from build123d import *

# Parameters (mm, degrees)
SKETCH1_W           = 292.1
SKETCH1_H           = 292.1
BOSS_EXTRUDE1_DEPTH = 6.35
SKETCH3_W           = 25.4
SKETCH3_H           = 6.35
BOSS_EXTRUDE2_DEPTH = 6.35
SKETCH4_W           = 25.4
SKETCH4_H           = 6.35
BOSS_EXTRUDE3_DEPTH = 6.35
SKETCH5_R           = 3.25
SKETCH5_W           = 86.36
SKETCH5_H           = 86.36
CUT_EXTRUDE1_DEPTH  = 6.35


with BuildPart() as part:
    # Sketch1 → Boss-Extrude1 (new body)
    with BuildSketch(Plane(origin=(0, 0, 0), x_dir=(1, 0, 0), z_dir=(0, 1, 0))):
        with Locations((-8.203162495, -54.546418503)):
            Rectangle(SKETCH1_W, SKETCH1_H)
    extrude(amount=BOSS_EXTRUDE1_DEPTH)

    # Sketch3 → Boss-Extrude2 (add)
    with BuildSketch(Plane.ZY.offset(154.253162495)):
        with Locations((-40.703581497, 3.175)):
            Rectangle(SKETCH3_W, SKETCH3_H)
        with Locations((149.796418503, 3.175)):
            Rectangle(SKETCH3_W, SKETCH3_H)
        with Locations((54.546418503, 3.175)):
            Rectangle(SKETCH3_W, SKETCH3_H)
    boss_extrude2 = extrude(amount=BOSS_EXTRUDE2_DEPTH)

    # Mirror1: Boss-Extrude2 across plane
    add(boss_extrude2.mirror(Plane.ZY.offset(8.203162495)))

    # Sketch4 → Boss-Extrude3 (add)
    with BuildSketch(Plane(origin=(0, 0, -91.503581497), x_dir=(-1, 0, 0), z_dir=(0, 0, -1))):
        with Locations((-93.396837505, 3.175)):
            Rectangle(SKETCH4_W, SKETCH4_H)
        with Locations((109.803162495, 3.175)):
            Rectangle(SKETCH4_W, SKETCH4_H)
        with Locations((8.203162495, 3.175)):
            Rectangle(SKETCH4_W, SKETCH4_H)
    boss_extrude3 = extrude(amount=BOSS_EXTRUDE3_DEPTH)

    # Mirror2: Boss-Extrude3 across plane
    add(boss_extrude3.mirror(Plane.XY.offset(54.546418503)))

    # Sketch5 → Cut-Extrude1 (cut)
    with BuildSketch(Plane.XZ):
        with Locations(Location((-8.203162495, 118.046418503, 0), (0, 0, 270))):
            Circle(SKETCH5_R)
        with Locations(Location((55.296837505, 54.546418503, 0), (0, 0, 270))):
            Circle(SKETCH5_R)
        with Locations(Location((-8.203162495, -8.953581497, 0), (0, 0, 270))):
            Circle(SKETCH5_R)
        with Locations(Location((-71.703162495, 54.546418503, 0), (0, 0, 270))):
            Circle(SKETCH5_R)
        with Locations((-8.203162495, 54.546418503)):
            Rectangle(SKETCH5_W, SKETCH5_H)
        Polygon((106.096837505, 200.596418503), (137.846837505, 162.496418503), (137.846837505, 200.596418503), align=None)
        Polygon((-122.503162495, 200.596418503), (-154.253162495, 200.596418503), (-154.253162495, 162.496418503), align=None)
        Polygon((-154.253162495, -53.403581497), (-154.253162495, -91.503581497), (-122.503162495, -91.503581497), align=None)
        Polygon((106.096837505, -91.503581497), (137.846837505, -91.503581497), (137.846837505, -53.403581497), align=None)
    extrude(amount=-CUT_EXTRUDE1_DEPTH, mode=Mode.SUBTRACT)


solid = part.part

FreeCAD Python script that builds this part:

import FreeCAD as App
import Part
import Sketcher
Q = App.Units.Quantity

doc = App.newDocument("Part")
params = doc.addObject("Spreadsheet::Sheet", "Params")
for row, (alias, value) in enumerate([
    ("sketch1_width", "11.5 in"),
    ("pad1_length", "0.25 in"),
    ("sketch2_height", "1 in"),
    ("sketch2_width", "0.25 in"),
    ("pad2_length", "0.25 in"),
    ("sketch3_width", "1 in"),
    ("sketch3_height", "0.25 in"),
    ("pad3_length", "0.25 in"),
    ("sketch4_width", "3.4 in"),
    ("sketch4_height", "1.5 in"),
    ("sketch4_width2", "1.25 in"),
    ("pocket1_length", "0.25 in"),
], start=1):
    params.set(f"A{row}", alias)
    params.set(f"B{row}", "=" + value)
    params.setAlias(f"B{row}", alias)

body = doc.addObject("PartDesign::Body", "Body")

# Sketch on XZ plane
sketch1 = body.newObject("Sketcher::SketchObject", "Sketch")
sketch1.AttachmentSupport = (doc.getObject("XZ_Plane"), [""])
sketch1.MapMode = "FlatFace"
sketch1.addGeometry([
    Part.LineSegment(App.Vector(-154, -92, 0), App.Vector(-154, 201, 0)),
    Part.LineSegment(App.Vector(-154, 201, 0), App.Vector(138, 201, 0)),
    Part.LineSegment(App.Vector(138, 201, 0), App.Vector(138, -92, 0)),
    Part.LineSegment(App.Vector(138, -92, 0), App.Vector(-154, -92, 0)),
], False)
sketch1.addConstraint([
    Sketcher.Constraint("Coincident", 0, 2, 1, 1),
    Sketcher.Constraint("Coincident", 1, 2, 2, 1),
    Sketcher.Constraint("Coincident", 2, 2, 3, 1),
    Sketcher.Constraint("Coincident", 3, 2, 0, 1),
    Sketcher.Constraint("Vertical", 0),
    Sketcher.Constraint("Horizontal", 1),
    Sketcher.Constraint("Vertical", 2),
    Sketcher.Constraint("Horizontal", 3),
    Sketcher.Constraint("Equal", 3, 0),
    Sketcher.Constraint("DistanceX", 1, 1, 1, 2, Q("11.5 in")),
    Sketcher.Constraint("DistanceY", -1, 1, 0, 2, Q("200.596419 mm")),
    Sketcher.Constraint("DistanceX", 0, 2, -1, 1, Q("154.253162 mm")),
])
sketch1.setExpression("Constraints[9]", "Params.sketch1_width")
pad1 = body.newObject("PartDesign::Pad", "Pad")
pad1.Profile = sketch1
pad1.setExpression("Length", "Params.pad1_length")
pad1.Reversed = True

# Sketch on YZ plane
sketch2 = body.newObject("Sketcher::SketchObject", "Sketch001")
sketch2.AttachmentSupport = (doc.getObject("YZ_Plane"), [""])
sketch2.MapMode = "FlatFace"
sketch2.AttachmentOffset = App.Placement(App.Vector(0, 0, -154.253162), App.Rotation())
sketch2.addGeometry([
    Part.LineSegment(App.Vector(6, -53, 0), App.Vector(0, -53, 0)),  # 0
    Part.LineSegment(App.Vector(0, -53, 0), App.Vector(0, -28, 0)),  # 1
    Part.LineSegment(App.Vector(0, -28, 0), App.Vector(6, -28, 0)),  # 2
    Part.LineSegment(App.Vector(6, -28, 0), App.Vector(6, -53, 0)),  # 3
    Part.LineSegment(App.Vector(6, 137, 0), App.Vector(0, 137, 0)),  # 4
    Part.LineSegment(App.Vector(0, 137, 0), App.Vector(0, 162, 0)),  # 5
    Part.LineSegment(App.Vector(0, 162, 0), App.Vector(6, 162, 0)),  # 6
    Part.LineSegment(App.Vector(6, 162, 0), App.Vector(6, 137, 0)),  # 7
    Part.LineSegment(App.Vector(6, 42, 0), App.Vector(0, 42, 0)),  # 8
    Part.LineSegment(App.Vector(0, 42, 0), App.Vector(0, 67, 0)),  # 9
    Part.LineSegment(App.Vector(0, 67, 0), App.Vector(6, 67, 0)),  # 10
    Part.LineSegment(App.Vector(6, 67, 0), App.Vector(6, 42, 0)),  # 11
], False)
sketch2.addConstraint([
    Sketcher.Constraint("Coincident", 0, 2, 1, 1),
    Sketcher.Constraint("Coincident", 1, 2, 2, 1),
    Sketcher.Constraint("Coincident", 2, 2, 3, 1),
    Sketcher.Constraint("Coincident", 3, 2, 0, 1),
    Sketcher.Constraint("Coincident", 4, 2, 5, 1),
    Sketcher.Constraint("Coincident", 5, 2, 6, 1),
    Sketcher.Constraint("Coincident", 6, 2, 7, 1),
    Sketcher.Constraint("Coincident", 7, 2, 4, 1),
    Sketcher.Constraint("Coincident", 8, 2, 9, 1),
    Sketcher.Constraint("Coincident", 9, 2, 10, 1),
    Sketcher.Constraint("Coincident", 10, 2, 11, 1),
    Sketcher.Constraint("Coincident", 11, 2, 8, 1),
    Sketcher.Constraint("Horizontal", 0),
    Sketcher.Constraint("Vertical", 1),
    Sketcher.Constraint("Horizontal", 2),
    Sketcher.Constraint("Vertical", 3),
    Sketcher.Constraint("Horizontal", 4),
    Sketcher.Constraint("Vertical", 5),
    Sketcher.Constraint("Horizontal", 6),
    Sketcher.Constraint("Vertical", 7),
    Sketcher.Constraint("Horizontal", 8),
    Sketcher.Constraint("Vertical", 9),
    Sketcher.Constraint("Horizontal", 10),
    Sketcher.Constraint("Vertical", 11),
    Sketcher.Constraint("PointOnObject", 0, 2, -2),
    Sketcher.Constraint("PointOnObject", 4, 2, -2),
    Sketcher.Constraint("PointOnObject", 8, 2, -2),
    Sketcher.Constraint("Vertical", 3, 2, 6, 2),
    Sketcher.Constraint("Vertical", 7, 2, 10, 2),
    Sketcher.Constraint("Equal", 3, 5),
    Sketcher.Constraint("Equal", 7, 9),
    Sketcher.Constraint("DistanceY", 1, 1, 1, 2, Q("1 in")),
    Sketcher.Constraint("DistanceX", 0, 2, 0, 1, Q("0.25 in")),
    Sketcher.Constraint("DistanceY", 1, 2, 4, 2, Q("6.5 in")),
    Sketcher.Constraint("DistanceY", 1, 2, 8, 2, Q("2.75 in")),
    Sketcher.Constraint("DistanceY", 0, 2, -1, 1, Q("53.403581 mm")),
])
sketch2.setExpression("Constraints[31]", "Params.sketch2_height")
sketch2.setExpression("Constraints[32]", "Params.sketch2_width")
pad2 = body.newObject("PartDesign::Pad", "Pad001")
pad2.Profile = sketch2
pad2.setExpression("Length", "Params.pad2_length")
pad2.Reversed = True
doc.recompute()

datumplane = body.newObject("PartDesign::Plane", "DatumPlane")
datumplane.AttachmentSupport = (doc.getObject("YZ_Plane"), [""])
datumplane.MapMode = "FlatFace"
datumplane.AttachmentOffset = App.Placement(App.Vector(0, 0, -8.203162), App.Rotation())
mirrored = body.newObject("PartDesign::Mirrored", "Mirrored")
mirrored.Originals = [pad2]
mirrored.MirrorPlane = (datumplane, [""])
body.Tip = mirrored

# Sketch on XY plane
sketch3 = body.newObject("Sketcher::SketchObject", "Sketch002")
sketch3.AttachmentSupport = (doc.getObject("XY_Plane"), [""])
sketch3.MapMode = "FlatFace"
sketch3.AttachmentOffset = App.Placement(App.Vector(0, 0, -91.503581), App.Rotation())
sketch3.addGeometry([
    Part.LineSegment(App.Vector(106, 6, 0), App.Vector(106, 0, 0)),  # 0
    Part.LineSegment(App.Vector(106, 0, 0), App.Vector(81, 0, 0)),  # 1
    Part.LineSegment(App.Vector(81, 0, 0), App.Vector(81, 6, 0)),  # 2
    Part.LineSegment(App.Vector(81, 6, 0), App.Vector(106, 6, 0)),  # 3
    Part.LineSegment(App.Vector(-97, 6, 0), App.Vector(-97, 0, 0)),  # 4
    Part.LineSegment(App.Vector(-97, 0, 0), App.Vector(-123, 0, 0)),  # 5
    Part.LineSegment(App.Vector(-123, 0, 0), App.Vector(-123, 6, 0)),  # 6
    Part.LineSegment(App.Vector(-123, 6, 0), App.Vector(-97, 6, 0)),  # 7
    Part.LineSegment(App.Vector(4, 6, 0), App.Vector(4, 0, 0)),  # 8
    Part.LineSegment(App.Vector(4, 0, 0), App.Vector(-21, 0, 0)),  # 9
    Part.LineSegment(App.Vector(-21, 0, 0), App.Vector(-21, 6, 0)),  # 10
    Part.LineSegment(App.Vector(-21, 6, 0), App.Vector(4, 6, 0)),  # 11
], False)
sketch3.addConstraint([
    Sketcher.Constraint("Coincident", 0, 2, 1, 1),
    Sketcher.Constraint("Coincident", 1, 2, 2, 1),
    Sketcher.Constraint("Coincident", 2, 2, 3, 1),
    Sketcher.Constraint("Coincident", 3, 2, 0, 1),
    Sketcher.Constraint("Coincident", 4, 2, 5, 1),
    Sketcher.Constraint("Coincident", 5, 2, 6, 1),
    Sketcher.Constraint("Coincident", 6, 2, 7, 1),
    Sketcher.Constraint("Coincident", 7, 2, 4, 1),
    Sketcher.Constraint("Coincident", 8, 2, 9, 1),
    Sketcher.Constraint("Coincident", 9, 2, 10, 1),
    Sketcher.Constraint("Coincident", 10, 2, 11, 1),
    Sketcher.Constraint("Coincident", 11, 2, 8, 1),
    Sketcher.Constraint("Vertical", 0),
    Sketcher.Constraint("Horizontal", 1),
    Sketcher.Constraint("Vertical", 2),
    Sketcher.Constraint("Horizontal", 3),
    Sketcher.Constraint("Vertical", 4),
    Sketcher.Constraint("Horizontal", 5),
    Sketcher.Constraint("Vertical", 6),
    Sketcher.Constraint("Horizontal", 7),
    Sketcher.Constraint("Vertical", 8),
    Sketcher.Constraint("Horizontal", 9),
    Sketcher.Constraint("Vertical", 10),
    Sketcher.Constraint("Horizontal", 11),
    Sketcher.Constraint("PointOnObject", 0, 2, -1),
    Sketcher.Constraint("PointOnObject", 4, 2, -1),
    Sketcher.Constraint("PointOnObject", 8, 2, -1),
    Sketcher.Constraint("Horizontal", 3, 2, 6, 2),
    Sketcher.Constraint("Horizontal", 7, 2, 10, 2),
    Sketcher.Constraint("Equal", 3, 5),
    Sketcher.Constraint("Equal", 7, 9),
    Sketcher.Constraint("DistanceX", 1, 2, 1, 1, Q("1 in")),
    Sketcher.Constraint("DistanceX", 4, 2, 1, 2, Q("7 in")),
    Sketcher.Constraint("DistanceX", 8, 2, 1, 2, Q("3 in")),
    Sketcher.Constraint("DistanceY", 0, 2, 0, 1, Q("0.25 in")),
    Sketcher.Constraint("DistanceX", -1, 1, 0, 2, Q("106.096838 mm")),
])
sketch3.setExpression("Constraints[31]", "Params.sketch3_width")
sketch3.setExpression("Constraints[34]", "Params.sketch3_height")
pad3 = body.newObject("PartDesign::Pad", "Pad002")
pad3.Profile = sketch3
pad3.setExpression("Length", "Params.pad3_length")
pad3.Reversed = True
doc.recompute()

datumplane2 = body.newObject("PartDesign::Plane", "DatumPlane001")
datumplane2.AttachmentSupport = (doc.getObject("XY_Plane"), [""])
datumplane2.MapMode = "FlatFace"
datumplane2.AttachmentOffset = App.Placement(App.Vector(0, 0, 54.546419), App.Rotation())
mirrored2 = body.newObject("PartDesign::Mirrored", "Mirrored001")
mirrored2.Originals = [pad3]
mirrored2.MirrorPlane = (datumplane2, [""])
body.Tip = mirrored2

# Sketch on XZ plane
sketch4 = body.newObject("Sketcher::SketchObject", "Sketch003")
sketch4.AttachmentSupport = (doc.getObject("XZ_Plane"), [""])
sketch4.MapMode = "FlatFace"
sketch4.addGeometry([
    Part.Circle(App.Vector(-8.2, 118, 0), App.Vector(0, 0, 1), 3.2),  # 0
    Part.Circle(App.Vector(55.3, 54.5, 0), App.Vector(0, 0, 1), 3.2),  # 1
    Part.Circle(App.Vector(-8.2, -9, 0), App.Vector(0, 0, 1), 3.2),  # 2
    Part.Circle(App.Vector(-71.7, 54.5, 0), App.Vector(0, 0, 1), 3.2),  # 3
    Part.LineSegment(App.Vector(-51.4, 97.7, 0), App.Vector(-51.4, 11.4, 0)),  # 4
    Part.LineSegment(App.Vector(-51.4, 11.4, 0), App.Vector(35, 11.4, 0)),  # 5
    Part.LineSegment(App.Vector(35, 11.4, 0), App.Vector(35, 97.7, 0)),  # 6
    Part.LineSegment(App.Vector(35, 97.7, 0), App.Vector(-51.4, 97.7, 0)),  # 7
    Part.LineSegment(App.Vector(106.1, 200.6, 0), App.Vector(137.8, 162.5, 0)),  # 8
    Part.LineSegment(App.Vector(137.8, 162.5, 0), App.Vector(137.8, 200.6, 0)),  # 9
    Part.LineSegment(App.Vector(137.8, 200.6, 0), App.Vector(106.1, 200.6, 0)),  # 10
    Part.LineSegment(App.Vector(-122.5, 200.6, 0), App.Vector(-154.3, 200.6, 0)),  # 11
    Part.LineSegment(App.Vector(-154.3, 200.6, 0), App.Vector(-154.3, 162.5, 0)),  # 12
    Part.LineSegment(App.Vector(-154.3, 162.5, 0), App.Vector(-122.5, 200.6, 0)),  # 13
    Part.LineSegment(App.Vector(-154.3, -53.4, 0), App.Vector(-154.3, -91.5, 0)),  # 14
    Part.LineSegment(App.Vector(-154.3, -91.5, 0), App.Vector(-122.5, -91.5, 0)),  # 15
    Part.LineSegment(App.Vector(-122.5, -91.5, 0), App.Vector(-154.3, -53.4, 0)),  # 16
    Part.LineSegment(App.Vector(106.1, -91.5, 0), App.Vector(137.8, -91.5, 0)),  # 17
    Part.LineSegment(App.Vector(137.8, -91.5, 0), App.Vector(137.8, -53.4, 0)),  # 18
    Part.LineSegment(App.Vector(137.8, -53.4, 0), App.Vector(106.1, -91.5, 0)),  # 19
], False)
sketch4.addConstraint([
    Sketcher.Constraint("Coincident", 4, 2, 5, 1),
    Sketcher.Constraint("Coincident", 5, 2, 6, 1),
    Sketcher.Constraint("Coincident", 6, 2, 7, 1),
    Sketcher.Constraint("Coincident", 7, 2, 4, 1),
    Sketcher.Constraint("Coincident", 8, 2, 9, 1),
    Sketcher.Constraint("Coincident", 9, 2, 10, 1),
    Sketcher.Constraint("Coincident", 10, 2, 8, 1),
    Sketcher.Constraint("Coincident", 11, 2, 12, 1),
    Sketcher.Constraint("Coincident", 12, 2, 13, 1),
    Sketcher.Constraint("Coincident", 13, 2, 11, 1),
    Sketcher.Constraint("Coincident", 14, 2, 15, 1),
    Sketcher.Constraint("Coincident", 15, 2, 16, 1),
    Sketcher.Constraint("Coincident", 16, 2, 14, 1),
    Sketcher.Constraint("Coincident", 17, 2, 18, 1),
    Sketcher.Constraint("Coincident", 18, 2, 19, 1),
    Sketcher.Constraint("Coincident", 19, 2, 17, 1),
    Sketcher.Constraint("Vertical", 4),
    Sketcher.Constraint("Horizontal", 5),
    Sketcher.Constraint("Vertical", 6),
    Sketcher.Constraint("Horizontal", 7),
    Sketcher.Constraint("Vertical", 9),
    Sketcher.Constraint("Horizontal", 10),
    Sketcher.Constraint("Horizontal", 11),
    Sketcher.Constraint("Vertical", 12),
    Sketcher.Constraint("Vertical", 14),
    Sketcher.Constraint("Horizontal", 15),
    Sketcher.Constraint("Horizontal", 17),
    Sketcher.Constraint("Vertical", 18),
    Sketcher.Constraint("Equal", 0, 1),
    Sketcher.Constraint("Equal", 1, 2),
    Sketcher.Constraint("Equal", 2, 3),
    Sketcher.Constraint("Parallel", 8, 16),
    Sketcher.Constraint("Parallel", 13, 19),
    Sketcher.Constraint("Horizontal", 1, 3, 3, 3),
    Sketcher.Constraint("Horizontal", 10, 2, 11, 2),
    Sketcher.Constraint("Horizontal", 8, 2, 12, 2),
    Sketcher.Constraint("Horizontal", 15, 2, 17, 2),
    Sketcher.Constraint("Horizontal", 16, 2, 18, 2),
    Sketcher.Constraint("Vertical", 0, 3, 2, 3),
    Sketcher.Constraint("Vertical", 12, 2, 14, 2),
    Sketcher.Constraint("Vertical", 13, 2, 15, 2),
    Sketcher.Constraint("Vertical", 9, 2, 17, 2),
    Sketcher.Constraint("Vertical", 10, 2, 19, 2),
    Sketcher.Constraint("Equal", 7, 4),
    Sketcher.Constraint("DistanceX", 5, 1, 5, 2, Q("3.4 in")),
    Sketcher.Constraint("DistanceY", 9, 1, 9, 2, Q("1.5 in")),
    Sketcher.Constraint("DistanceY", 2, 3, 0, 3, Q("5 in")),
    Sketcher.Constraint("DistanceX", 3, 3, 1, 3, Q("5 in")),
    Sketcher.Constraint("DistanceX", 1, 3, 10, 2, Q("2 in")),
    Sketcher.Constraint("DistanceX", 13, 2, 3, 3, Q("2 in")),
    Sketcher.Constraint("DistanceX", 10, 2, 10, 1, Q("1.25 in")),
    Sketcher.Constraint("DistanceX", 0, 3, 1, 3, Q("2.5 in")),
    Sketcher.Constraint("DistanceY", 1, 3, 0, 3, Q("2.5 in")),
    Sketcher.Constraint("DistanceX", 4, 2, 2, 3, Q("1.7 in")),
    Sketcher.Constraint("DistanceY", 2, 3, 4, 2, Q("0.8 in")),
    Sketcher.Constraint("Diameter", 0, Q("6.5 mm")),
    Sketcher.Constraint("DistanceY", 6, 2, 8, 2, Q("2.55 in")),
    Sketcher.Constraint("DistanceY", 14, 2, 4, 2, Q("4.05 in")),
    Sketcher.Constraint("DistanceY", -1, 1, 0, 3, Q("118.046419 mm")),
    Sketcher.Constraint("DistanceX", 0, 3, -1, 1, Q("8.203162 mm")),
])
sketch4.setExpression("Constraints[44]", "Params.sketch4_width")
sketch4.setExpression("Constraints[45]", "Params.sketch4_height")
sketch4.setExpression("Constraints[50]", "Params.sketch4_width2")
pocket1 = body.newObject("PartDesign::Pocket", "Pocket")
pocket1.Profile = sketch4
pocket1.setExpression("Length", "Params.pocket1_length")

doc.recompute()
